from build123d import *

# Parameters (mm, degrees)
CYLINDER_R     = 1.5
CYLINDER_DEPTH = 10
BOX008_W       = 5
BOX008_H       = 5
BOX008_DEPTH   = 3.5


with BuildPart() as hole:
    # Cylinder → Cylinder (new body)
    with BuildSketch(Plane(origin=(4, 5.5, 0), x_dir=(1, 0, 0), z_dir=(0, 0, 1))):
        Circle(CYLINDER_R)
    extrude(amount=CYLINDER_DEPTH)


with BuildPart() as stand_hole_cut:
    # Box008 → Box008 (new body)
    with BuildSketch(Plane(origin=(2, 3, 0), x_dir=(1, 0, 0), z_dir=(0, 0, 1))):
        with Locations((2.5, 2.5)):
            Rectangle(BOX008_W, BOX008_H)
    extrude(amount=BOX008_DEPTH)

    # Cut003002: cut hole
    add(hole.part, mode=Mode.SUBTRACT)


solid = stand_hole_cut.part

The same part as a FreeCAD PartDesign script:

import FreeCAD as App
import Part
import Sketcher
from FreeCAD import Vector
Q = App.Units.Quantity

doc = App.newDocument("Part")
params = doc.addObject("Spreadsheet::Sheet", "Params")
for row, (alias, value) in enumerate([
    ("sketch1_diameter", "3 mm"),
    ("pad1_length", "10 mm"),
    ("sketch2_width", "5 mm"),
    ("pad2_length", "3.5 mm"),
], start=1):
    params.set(f"A{row}", alias)
    params.set(f"B{row}", "=" + value)
    params.setAlias(f"B{row}", alias)

body = doc.addObject("PartDesign::Body", "Body")

# Sketch on XY plane
sketch1 = body.newObject("Sketcher::SketchObject", "Sketch")
sketch1.AttachmentSupport = (doc.getObject("XY_Plane"), [""])
sketch1.MapMode = "FlatFace"
sketch1.addGeometry(Part.Circle(Vector(4, 5.5, 0), Vector(0, 0, 1), 1.5), False)
sketch1.addConstraint([
    Sketcher.Constraint("Diameter", 0, Q("3 mm")),
    Sketcher.Constraint("DistanceX", -1, 1, 0, 3, Q("4 mm")),
    Sketcher.Constraint("DistanceY", -1, 1, 0, 3, Q("5.5 mm")),
])
sketch1.setExpression("Constraints[0]", "Params.sketch1_diameter")
pad1 = body.newObject("PartDesign::Pad", "Pad")
pad1.Profile = sketch1
pad1.setExpression("Length", "Params.pad1_length")
body2 = doc.addObject("PartDesign::Body", "Body001")

# Sketch on XY plane
sketch2 = body2.newObject("Sketcher::SketchObject", "Sketch001")
sketch2.AttachmentSupport = (doc.getObject("XY_Plane001"), [""])
sketch2.MapMode = "FlatFace"
sketch2.addGeometry([
    Part.LineSegment(Vector(2, 8, 0), Vector(2, 3, 0)),
    Part.LineSegment(Vector(2, 3, 0), Vector(7, 3, 0)),
    Part.LineSegment(Vector(7, 3, 0), Vector(7, 8, 0)),
    Part.LineSegment(Vector(7, 8, 0), Vector(2, 8, 0)),
], False)
sketch2.addConstraint([
    Sketcher.Constraint("Coincident", 0, 2, 1, 1),
    Sketcher.Constraint("Coincident", 1, 2, 2, 1),
    Sketcher.Constraint("Coincident", 2, 2, 3, 1),
    Sketcher.Constraint("Coincident", 3, 2, 0, 1),
    Sketcher.Constraint("Vertical", 0),
    Sketcher.Constraint("Horizontal", 1),
    Sketcher.Constraint("Vertical", 2),
    Sketcher.Constraint("Horizontal", 3),
    Sketcher.Constraint("Equal", 3, 0),
    Sketcher.Constraint("DistanceX", 1, 1, 1, 2, Q("5 mm")),
    Sketcher.Constraint("DistanceX", -1, 1, 0, 2, Q("2 mm")),
    Sketcher.Constraint("DistanceY", -1, 1, 0, 2, Q("3 mm")),
])
sketch2.setExpression("Constraints[9]", "Params.sketch2_width")
pad2 = body2.newObject("PartDesign::Pad", "Pad001")
pad2.Profile = sketch2
pad2.setExpression("Length", "Params.pad2_length")
doc.recompute()

boolean = body2.newObject("PartDesign::Boolean", "Boolean")
boolean.Type = "Cut"
boolean.addObjects([body])

doc.recompute()
